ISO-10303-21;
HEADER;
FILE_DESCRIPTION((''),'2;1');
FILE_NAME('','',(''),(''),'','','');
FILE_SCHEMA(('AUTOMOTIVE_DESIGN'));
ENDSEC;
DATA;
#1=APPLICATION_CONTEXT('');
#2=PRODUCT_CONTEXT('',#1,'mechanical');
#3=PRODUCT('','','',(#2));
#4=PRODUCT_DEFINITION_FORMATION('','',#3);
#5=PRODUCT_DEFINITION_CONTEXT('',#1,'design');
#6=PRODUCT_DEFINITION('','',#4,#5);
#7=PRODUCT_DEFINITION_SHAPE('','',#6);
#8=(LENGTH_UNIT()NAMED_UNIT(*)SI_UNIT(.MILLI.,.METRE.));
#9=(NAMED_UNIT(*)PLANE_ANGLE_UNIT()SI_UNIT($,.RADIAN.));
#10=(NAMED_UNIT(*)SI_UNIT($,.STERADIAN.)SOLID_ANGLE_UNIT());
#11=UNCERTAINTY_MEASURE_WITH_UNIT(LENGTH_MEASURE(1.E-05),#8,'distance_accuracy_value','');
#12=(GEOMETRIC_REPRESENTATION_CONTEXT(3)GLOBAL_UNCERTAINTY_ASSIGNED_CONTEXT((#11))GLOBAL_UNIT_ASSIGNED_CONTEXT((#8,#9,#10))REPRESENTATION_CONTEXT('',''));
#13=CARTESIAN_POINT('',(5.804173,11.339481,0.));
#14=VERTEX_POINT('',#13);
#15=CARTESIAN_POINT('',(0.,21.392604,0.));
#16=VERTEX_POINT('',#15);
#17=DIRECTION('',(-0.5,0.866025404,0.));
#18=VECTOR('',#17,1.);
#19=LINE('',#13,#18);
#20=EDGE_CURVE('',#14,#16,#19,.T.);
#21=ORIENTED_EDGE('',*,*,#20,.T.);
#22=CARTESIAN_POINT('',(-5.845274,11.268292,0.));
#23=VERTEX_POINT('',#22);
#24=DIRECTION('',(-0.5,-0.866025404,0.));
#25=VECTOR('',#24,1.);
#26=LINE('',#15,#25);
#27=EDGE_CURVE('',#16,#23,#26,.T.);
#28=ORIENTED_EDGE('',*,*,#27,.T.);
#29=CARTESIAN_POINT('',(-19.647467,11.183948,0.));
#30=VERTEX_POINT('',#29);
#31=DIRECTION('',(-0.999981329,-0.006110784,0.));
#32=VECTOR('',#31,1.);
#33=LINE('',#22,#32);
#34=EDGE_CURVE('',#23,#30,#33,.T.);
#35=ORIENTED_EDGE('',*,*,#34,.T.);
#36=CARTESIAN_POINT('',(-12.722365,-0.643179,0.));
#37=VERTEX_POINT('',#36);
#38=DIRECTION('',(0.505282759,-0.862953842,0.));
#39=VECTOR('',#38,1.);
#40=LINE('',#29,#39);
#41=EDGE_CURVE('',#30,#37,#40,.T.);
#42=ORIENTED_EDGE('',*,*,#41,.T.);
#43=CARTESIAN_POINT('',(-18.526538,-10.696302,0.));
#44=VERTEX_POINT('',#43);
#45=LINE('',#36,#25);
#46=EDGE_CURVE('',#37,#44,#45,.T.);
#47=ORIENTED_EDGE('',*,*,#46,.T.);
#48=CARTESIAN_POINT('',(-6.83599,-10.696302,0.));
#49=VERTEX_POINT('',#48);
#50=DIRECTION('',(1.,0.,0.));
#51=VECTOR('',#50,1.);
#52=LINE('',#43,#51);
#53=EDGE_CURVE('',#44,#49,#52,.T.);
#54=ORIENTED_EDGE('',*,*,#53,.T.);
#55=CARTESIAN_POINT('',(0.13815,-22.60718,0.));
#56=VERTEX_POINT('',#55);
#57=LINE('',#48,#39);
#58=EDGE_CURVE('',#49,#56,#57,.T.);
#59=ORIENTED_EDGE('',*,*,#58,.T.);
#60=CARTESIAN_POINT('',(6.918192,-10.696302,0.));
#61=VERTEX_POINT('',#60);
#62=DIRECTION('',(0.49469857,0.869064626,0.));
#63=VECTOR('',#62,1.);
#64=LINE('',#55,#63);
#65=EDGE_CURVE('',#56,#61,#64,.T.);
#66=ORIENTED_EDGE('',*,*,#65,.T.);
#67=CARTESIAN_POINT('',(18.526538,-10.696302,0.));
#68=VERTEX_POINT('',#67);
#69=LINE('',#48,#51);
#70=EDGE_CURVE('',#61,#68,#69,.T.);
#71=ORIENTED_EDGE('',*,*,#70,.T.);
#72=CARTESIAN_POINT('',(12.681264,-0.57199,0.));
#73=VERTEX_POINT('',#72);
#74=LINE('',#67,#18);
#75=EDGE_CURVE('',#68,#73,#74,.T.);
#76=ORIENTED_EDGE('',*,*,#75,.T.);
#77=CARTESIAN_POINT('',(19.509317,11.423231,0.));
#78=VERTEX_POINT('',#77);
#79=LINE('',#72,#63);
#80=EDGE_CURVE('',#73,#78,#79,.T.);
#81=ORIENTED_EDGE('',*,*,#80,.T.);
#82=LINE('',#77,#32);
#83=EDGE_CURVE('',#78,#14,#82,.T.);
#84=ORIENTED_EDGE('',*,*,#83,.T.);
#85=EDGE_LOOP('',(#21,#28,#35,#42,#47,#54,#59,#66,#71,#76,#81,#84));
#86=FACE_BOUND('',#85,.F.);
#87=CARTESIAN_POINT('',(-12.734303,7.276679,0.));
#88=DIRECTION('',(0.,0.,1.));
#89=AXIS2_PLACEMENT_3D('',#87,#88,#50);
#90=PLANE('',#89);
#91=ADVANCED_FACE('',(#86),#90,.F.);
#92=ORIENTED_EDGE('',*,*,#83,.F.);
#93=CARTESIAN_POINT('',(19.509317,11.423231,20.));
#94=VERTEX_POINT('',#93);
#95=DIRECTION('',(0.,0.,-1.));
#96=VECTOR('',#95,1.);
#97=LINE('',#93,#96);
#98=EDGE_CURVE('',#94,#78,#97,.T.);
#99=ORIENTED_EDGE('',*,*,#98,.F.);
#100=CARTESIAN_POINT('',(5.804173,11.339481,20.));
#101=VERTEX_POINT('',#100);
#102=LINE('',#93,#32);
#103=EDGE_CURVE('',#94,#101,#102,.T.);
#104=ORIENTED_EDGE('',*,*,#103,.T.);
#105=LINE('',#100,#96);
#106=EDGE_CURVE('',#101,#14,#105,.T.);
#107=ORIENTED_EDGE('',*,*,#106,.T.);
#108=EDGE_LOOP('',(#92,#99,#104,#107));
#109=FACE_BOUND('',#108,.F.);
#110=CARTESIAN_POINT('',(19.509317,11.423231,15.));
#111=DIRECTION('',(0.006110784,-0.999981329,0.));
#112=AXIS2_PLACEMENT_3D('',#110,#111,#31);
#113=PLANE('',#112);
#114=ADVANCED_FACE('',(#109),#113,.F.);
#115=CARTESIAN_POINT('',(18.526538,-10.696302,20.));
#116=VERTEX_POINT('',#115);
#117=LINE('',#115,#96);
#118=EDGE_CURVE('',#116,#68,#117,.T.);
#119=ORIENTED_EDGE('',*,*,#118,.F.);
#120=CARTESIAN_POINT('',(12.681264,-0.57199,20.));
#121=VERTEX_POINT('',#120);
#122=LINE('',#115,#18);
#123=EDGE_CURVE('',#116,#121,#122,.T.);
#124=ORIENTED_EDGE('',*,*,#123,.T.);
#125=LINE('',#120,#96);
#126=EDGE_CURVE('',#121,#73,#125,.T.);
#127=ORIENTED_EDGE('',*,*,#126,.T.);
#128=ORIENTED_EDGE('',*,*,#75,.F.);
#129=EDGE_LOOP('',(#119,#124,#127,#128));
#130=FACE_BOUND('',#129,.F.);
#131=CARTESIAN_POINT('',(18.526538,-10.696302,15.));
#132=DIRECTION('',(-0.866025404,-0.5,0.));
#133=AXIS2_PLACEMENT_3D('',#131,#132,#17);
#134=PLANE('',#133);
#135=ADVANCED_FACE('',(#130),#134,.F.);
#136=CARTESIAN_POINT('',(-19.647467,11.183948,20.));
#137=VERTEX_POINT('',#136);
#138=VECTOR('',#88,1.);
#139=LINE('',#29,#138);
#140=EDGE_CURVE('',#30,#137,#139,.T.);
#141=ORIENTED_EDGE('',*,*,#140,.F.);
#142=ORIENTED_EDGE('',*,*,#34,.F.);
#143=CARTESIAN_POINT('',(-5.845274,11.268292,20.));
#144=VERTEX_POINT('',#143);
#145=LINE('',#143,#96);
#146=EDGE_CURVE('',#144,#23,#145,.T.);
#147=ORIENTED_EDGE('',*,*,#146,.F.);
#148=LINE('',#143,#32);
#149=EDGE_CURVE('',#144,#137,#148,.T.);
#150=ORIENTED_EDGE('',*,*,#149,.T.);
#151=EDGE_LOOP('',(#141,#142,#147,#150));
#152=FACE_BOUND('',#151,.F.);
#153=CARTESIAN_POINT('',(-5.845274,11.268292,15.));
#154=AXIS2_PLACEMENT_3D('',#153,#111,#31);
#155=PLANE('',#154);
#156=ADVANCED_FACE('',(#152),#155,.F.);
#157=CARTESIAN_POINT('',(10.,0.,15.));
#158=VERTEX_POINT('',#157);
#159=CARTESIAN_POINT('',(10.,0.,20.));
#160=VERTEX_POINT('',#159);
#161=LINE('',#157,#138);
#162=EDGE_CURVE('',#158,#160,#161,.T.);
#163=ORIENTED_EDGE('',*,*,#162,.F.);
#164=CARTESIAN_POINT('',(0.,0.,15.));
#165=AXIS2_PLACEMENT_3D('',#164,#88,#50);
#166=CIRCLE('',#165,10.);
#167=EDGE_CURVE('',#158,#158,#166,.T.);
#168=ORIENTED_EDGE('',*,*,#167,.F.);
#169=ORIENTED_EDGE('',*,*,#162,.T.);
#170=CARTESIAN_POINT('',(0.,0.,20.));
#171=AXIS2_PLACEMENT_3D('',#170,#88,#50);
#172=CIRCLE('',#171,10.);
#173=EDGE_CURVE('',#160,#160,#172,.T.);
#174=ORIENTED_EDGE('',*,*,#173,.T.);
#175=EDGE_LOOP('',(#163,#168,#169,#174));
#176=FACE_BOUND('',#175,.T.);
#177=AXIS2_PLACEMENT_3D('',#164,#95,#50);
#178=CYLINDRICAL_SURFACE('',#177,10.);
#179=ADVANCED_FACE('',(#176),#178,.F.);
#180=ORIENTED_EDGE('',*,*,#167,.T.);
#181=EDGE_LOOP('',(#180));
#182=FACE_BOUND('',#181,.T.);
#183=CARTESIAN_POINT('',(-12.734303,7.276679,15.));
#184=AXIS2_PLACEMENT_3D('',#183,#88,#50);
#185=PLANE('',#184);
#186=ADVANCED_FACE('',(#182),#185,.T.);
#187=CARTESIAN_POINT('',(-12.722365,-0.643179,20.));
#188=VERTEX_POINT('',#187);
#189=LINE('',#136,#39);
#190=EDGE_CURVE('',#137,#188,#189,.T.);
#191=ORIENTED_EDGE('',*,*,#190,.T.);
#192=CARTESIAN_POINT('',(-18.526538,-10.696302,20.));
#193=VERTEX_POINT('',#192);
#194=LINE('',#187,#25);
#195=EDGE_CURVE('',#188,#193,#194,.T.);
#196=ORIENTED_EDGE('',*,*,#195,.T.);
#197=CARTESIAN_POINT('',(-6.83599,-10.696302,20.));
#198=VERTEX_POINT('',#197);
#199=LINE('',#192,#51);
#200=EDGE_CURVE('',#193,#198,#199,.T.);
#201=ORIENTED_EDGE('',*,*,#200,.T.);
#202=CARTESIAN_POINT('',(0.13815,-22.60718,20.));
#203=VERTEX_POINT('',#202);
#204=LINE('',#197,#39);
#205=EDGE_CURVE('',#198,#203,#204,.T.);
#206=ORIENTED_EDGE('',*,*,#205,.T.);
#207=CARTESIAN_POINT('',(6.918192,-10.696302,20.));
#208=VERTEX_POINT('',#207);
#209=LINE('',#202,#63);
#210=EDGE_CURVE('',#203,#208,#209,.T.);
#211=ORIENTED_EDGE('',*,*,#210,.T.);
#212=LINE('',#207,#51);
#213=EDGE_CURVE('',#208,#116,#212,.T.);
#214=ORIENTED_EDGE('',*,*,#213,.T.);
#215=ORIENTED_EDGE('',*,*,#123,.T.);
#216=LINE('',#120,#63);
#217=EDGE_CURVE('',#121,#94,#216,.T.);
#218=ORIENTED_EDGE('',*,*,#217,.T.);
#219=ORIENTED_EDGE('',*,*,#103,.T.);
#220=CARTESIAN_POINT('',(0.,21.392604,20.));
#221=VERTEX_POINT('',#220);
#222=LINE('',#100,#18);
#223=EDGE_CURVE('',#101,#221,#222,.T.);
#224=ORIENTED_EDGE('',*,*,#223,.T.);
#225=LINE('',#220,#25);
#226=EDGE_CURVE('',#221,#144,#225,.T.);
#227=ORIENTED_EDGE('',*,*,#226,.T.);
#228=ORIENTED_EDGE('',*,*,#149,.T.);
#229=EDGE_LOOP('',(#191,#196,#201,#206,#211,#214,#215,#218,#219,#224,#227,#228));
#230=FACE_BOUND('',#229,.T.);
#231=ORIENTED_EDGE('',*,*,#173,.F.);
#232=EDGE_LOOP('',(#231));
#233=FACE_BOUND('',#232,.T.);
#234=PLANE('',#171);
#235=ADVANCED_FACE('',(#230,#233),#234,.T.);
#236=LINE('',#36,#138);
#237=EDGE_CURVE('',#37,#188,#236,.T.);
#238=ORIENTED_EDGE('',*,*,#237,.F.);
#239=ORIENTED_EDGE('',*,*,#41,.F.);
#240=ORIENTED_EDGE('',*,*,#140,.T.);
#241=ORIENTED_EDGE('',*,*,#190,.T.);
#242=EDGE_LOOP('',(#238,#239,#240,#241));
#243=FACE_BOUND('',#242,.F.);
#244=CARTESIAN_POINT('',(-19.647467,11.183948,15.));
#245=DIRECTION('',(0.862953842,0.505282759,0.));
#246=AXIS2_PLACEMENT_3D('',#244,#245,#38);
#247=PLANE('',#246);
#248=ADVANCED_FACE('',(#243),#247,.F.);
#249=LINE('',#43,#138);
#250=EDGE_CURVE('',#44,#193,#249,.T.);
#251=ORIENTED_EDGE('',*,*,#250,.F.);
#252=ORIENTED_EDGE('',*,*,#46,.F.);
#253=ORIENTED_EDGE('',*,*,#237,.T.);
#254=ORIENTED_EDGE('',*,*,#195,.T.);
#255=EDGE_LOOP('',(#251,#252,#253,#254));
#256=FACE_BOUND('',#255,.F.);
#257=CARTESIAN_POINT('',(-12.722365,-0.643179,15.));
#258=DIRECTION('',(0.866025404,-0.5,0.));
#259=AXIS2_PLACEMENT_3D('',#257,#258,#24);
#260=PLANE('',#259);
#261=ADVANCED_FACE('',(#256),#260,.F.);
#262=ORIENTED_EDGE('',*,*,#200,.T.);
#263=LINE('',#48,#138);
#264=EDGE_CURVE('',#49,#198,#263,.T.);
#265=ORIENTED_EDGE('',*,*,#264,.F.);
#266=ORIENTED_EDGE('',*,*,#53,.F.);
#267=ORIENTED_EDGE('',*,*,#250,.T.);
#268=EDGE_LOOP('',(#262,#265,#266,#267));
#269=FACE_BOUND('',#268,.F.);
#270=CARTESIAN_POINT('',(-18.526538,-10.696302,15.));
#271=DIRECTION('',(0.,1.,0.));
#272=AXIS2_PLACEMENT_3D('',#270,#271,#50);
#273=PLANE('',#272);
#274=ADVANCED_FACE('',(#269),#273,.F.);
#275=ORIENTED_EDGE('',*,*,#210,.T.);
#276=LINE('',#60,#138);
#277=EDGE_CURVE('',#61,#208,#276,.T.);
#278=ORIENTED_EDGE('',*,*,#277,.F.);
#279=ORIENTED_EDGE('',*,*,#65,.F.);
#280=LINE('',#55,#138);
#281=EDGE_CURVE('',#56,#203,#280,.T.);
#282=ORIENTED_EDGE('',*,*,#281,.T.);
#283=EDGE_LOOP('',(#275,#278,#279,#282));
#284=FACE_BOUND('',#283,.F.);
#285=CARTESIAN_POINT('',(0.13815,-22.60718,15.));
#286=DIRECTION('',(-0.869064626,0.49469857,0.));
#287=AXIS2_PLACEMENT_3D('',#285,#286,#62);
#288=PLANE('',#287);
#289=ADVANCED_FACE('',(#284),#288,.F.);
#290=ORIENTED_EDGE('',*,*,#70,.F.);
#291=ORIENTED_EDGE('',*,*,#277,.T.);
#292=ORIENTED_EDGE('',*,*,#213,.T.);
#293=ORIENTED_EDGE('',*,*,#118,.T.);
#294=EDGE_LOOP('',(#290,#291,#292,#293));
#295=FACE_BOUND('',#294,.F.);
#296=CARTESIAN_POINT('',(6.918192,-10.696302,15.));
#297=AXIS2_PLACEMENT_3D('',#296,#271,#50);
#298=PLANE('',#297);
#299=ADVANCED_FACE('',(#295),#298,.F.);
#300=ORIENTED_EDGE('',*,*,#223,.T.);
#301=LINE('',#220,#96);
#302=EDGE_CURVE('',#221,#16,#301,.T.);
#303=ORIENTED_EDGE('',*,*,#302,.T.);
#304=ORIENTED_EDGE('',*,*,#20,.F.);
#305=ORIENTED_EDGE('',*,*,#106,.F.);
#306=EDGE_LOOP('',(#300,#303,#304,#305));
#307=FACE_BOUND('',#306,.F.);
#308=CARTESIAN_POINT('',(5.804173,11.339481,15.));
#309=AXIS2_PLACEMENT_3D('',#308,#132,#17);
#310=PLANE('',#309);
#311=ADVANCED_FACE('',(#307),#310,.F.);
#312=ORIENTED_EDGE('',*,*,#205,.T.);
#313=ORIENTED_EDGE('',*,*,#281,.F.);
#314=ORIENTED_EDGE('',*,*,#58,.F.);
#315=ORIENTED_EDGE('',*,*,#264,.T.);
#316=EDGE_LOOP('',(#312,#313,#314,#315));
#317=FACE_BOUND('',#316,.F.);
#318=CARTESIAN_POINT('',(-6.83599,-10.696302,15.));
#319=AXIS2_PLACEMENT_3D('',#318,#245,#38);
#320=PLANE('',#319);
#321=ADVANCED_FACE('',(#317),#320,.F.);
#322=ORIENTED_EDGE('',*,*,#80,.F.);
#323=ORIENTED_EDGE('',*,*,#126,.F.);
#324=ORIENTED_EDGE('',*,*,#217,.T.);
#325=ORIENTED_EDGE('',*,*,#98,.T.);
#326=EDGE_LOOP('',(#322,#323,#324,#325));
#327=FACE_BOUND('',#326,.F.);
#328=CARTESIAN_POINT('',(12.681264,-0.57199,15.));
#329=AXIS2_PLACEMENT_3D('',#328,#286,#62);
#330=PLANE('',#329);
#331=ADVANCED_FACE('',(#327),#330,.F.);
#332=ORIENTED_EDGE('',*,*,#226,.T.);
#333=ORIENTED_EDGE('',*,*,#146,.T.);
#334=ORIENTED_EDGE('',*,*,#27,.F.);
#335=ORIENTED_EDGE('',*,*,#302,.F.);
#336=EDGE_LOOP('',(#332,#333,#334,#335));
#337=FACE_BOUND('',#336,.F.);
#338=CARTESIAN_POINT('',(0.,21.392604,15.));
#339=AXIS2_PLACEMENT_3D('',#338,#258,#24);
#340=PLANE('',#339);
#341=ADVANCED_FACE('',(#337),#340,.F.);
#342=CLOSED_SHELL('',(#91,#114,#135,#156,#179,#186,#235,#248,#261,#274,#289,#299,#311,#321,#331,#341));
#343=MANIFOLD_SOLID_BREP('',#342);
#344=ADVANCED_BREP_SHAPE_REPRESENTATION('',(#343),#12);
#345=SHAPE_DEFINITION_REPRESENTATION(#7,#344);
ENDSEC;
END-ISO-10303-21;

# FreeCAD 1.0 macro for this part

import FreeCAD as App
import Part
import Sketcher

V = App.Vector
Q = App.Units.Quantity


def add_polygon(sketch, points):
    """Adds a closed chain of lines whose ends are joined by coincident constraints."""
    first, n = sketch.GeometryCount, len(points)
    for a, b in zip(points, points[1:] + points[:1]):
        sketch.addGeometry(Part.LineSegment(App.Vector(*a, 0), App.Vector(*b, 0)), False)
    for i in range(n):
        sketch.addConstraint(Sketcher.Constraint("Coincident", first + i, 2, first + (i + 1) % n, 1))

doc = App.newDocument("Part")
body = doc.addObject("PartDesign::Body", "Body")

# Sketch on XY plane
sketch1 = body.newObject("Sketcher::SketchObject", "Sketch")
sketch1.AttachmentSupport = (doc.getObject("XY_Plane"), [""])
sketch1.MapMode = "FlatFace"
add_polygon(sketch1, [(-6, 11), (-20, 11), (-13, -1), (-19, -11), (-7, -11), (0, -23), (7, -11), (19, -11), (13, -1), (20, 11), (6, 11), (0, 21)])  # lines 0-11
sketch1.addConstraint(Sketcher.Constraint("Horizontal", 3))
sketch1.addConstraint(Sketcher.Constraint("Horizontal", 6))
sketch1.addConstraint(Sketcher.Constraint("Symmetric", 2, 2, 6, 2, -2))
sketch1.addConstraint(Sketcher.Constraint("PointOnObject", 10, 2, -2))
sketch1.addConstraint(Sketcher.Constraint("Parallel", 1, 4))
sketch1.addConstraint(Sketcher.Constraint("Parallel", 5, 8))
sketch1.addConstraint(Sketcher.Constraint("Parallel", 0, 9))
sketch1.addConstraint(Sketcher.Constraint("Parallel", 7, 10))
sketch1.addConstraint(Sketcher.Constraint("Parallel", 2, 11))
sketch1.addConstraint(Sketcher.Constraint("Equal", 0, 4))
sketch1.addConstraint(Sketcher.Constraint("Equal", 1, 5))
sketch1.addConstraint(Sketcher.Constraint("Equal", 4, 8))
sketch1.addConstraint(Sketcher.Constraint("Equal", 5, 9))
sketch1.addConstraint(Sketcher.Constraint("Equal", 2, 10))
sketch1.addConstraint(Sketcher.Constraint("Equal", 7, 11))
sketch1.addConstraint(Sketcher.Constraint("Angle", 2, Q("-120 deg")))
sketch1.addConstraint(Sketcher.Constraint("Angle", 7, Q("120 deg")))
sketch1.addConstraint(Sketcher.Constraint("DistanceY", 4, 2, 1, 2, Q("21.964001 mm")))
sketch1.addConstraint(Sketcher.Constraint("Distance", 1, Q("13.705399 mm")))
sketch1.addConstraint(Sketcher.Constraint("DistanceY", 2, 2, -1, 1, Q("10.696302 mm")))
sketch1.addConstraint(Sketcher.Constraint("Distance", 0, Q("13.802451 mm")))
sketch1.addConstraint(Sketcher.Constraint("DistanceX", 3, 1, 3, 2, Q("11.690548 mm")))
sketch1.addConstraint(Sketcher.Constraint("DistanceX", 6, 1, 6, 2, Q("11.608346 mm")))
pad1 = body.newObject("PartDesign::Pad", "Pad")
pad1.Profile = sketch1
pad1.Length = 15

# Sketch on XY plane
sketch2 = body.newObject("Sketcher::SketchObject", "Sketch001")
sketch2.AttachmentSupport = (doc.getObject("XY_Plane"), [""])
sketch2.MapMode = "FlatFace"
sketch2.AttachmentOffset = App.Placement(V(0, 0, 15), App.Rotation())
add_polygon(sketch2, [(-6, 11), (-20, 11), (-13, -1), (-19, -11), (-7, -11), (0, -23), (7, -11), (19, -11), (13, -1), (20, 11), (6, 11), (0, 21)])  # lines 0-11
sketch2.addGeometry(Part.Circle(V(0, 0, 0), V(0, 0, 1), 10), False)  # 12
sketch2.addConstraint(Sketcher.Constraint("Horizontal", 3))
sketch2.addConstraint(Sketcher.Constraint("Horizontal", 6))
sketch2.addConstraint(Sketcher.Constraint("Coincident", 12, 3, -1, 1))
sketch2.addConstraint(Sketcher.Constraint("Symmetric", 2, 2, 6, 2, -2))
sketch2.addConstraint(Sketcher.Constraint("PointOnObject", 10, 2, -2))
sketch2.addConstraint(Sketcher.Constraint("Parallel", 1, 4))
sketch2.addConstraint(Sketcher.Constraint("Parallel", 5, 8))
sketch2.addConstraint(Sketcher.Constraint("Parallel", 0, 9))
sketch2.addConstraint(Sketcher.Constraint("Parallel", 7, 10))
sketch2.addConstraint(Sketcher.Constraint("Parallel", 2, 11))
sketch2.addConstraint(Sketcher.Constraint("Equal", 0, 4))
sketch2.addConstraint(Sketcher.Constraint("Equal", 1, 5))
sketch2.addConstraint(Sketcher.Constraint("Equal", 4, 8))
sketch2.addConstraint(Sketcher.Constraint("Equal", 5, 9))
sketch2.addConstraint(Sketcher.Constraint("Equal", 2, 10))
sketch2.addConstraint(Sketcher.Constraint("Equal", 7, 11))
sketch2.addConstraint(Sketcher.Constraint("Diameter", 12, Q("20 mm")))
sketch2.addConstraint(Sketcher.Constraint("Angle", 2, Q("-120 deg")))
sketch2.addConstraint(Sketcher.Constraint("Angle", 7, Q("120 deg")))
sketch2.addConstraint(Sketcher.Constraint("DistanceY", 4, 2, 1, 2, Q("21.964001 mm")))
sketch2.addConstraint(Sketcher.Constraint("Distance", 1, Q("13.705399 mm")))
sketch2.addConstraint(Sketcher.Constraint("DistanceY", 2, 2, -1, 1, Q("10.696302 mm")))
sketch2.addConstraint(Sketcher.Constraint("Distance", 0, Q("13.802451 mm")))
sketch2.addConstraint(Sketcher.Constraint("DistanceX", 3, 1, 3, 2, Q("11.690548 mm")))
sketch2.addConstraint(Sketcher.Constraint("DistanceX", 6, 1, 6, 2, Q("11.608346 mm")))
pad2 = body.newObject("PartDesign::Pad", "Pad001")
pad2.Profile = sketch2
pad2.Length = 5

doc.recompute()
